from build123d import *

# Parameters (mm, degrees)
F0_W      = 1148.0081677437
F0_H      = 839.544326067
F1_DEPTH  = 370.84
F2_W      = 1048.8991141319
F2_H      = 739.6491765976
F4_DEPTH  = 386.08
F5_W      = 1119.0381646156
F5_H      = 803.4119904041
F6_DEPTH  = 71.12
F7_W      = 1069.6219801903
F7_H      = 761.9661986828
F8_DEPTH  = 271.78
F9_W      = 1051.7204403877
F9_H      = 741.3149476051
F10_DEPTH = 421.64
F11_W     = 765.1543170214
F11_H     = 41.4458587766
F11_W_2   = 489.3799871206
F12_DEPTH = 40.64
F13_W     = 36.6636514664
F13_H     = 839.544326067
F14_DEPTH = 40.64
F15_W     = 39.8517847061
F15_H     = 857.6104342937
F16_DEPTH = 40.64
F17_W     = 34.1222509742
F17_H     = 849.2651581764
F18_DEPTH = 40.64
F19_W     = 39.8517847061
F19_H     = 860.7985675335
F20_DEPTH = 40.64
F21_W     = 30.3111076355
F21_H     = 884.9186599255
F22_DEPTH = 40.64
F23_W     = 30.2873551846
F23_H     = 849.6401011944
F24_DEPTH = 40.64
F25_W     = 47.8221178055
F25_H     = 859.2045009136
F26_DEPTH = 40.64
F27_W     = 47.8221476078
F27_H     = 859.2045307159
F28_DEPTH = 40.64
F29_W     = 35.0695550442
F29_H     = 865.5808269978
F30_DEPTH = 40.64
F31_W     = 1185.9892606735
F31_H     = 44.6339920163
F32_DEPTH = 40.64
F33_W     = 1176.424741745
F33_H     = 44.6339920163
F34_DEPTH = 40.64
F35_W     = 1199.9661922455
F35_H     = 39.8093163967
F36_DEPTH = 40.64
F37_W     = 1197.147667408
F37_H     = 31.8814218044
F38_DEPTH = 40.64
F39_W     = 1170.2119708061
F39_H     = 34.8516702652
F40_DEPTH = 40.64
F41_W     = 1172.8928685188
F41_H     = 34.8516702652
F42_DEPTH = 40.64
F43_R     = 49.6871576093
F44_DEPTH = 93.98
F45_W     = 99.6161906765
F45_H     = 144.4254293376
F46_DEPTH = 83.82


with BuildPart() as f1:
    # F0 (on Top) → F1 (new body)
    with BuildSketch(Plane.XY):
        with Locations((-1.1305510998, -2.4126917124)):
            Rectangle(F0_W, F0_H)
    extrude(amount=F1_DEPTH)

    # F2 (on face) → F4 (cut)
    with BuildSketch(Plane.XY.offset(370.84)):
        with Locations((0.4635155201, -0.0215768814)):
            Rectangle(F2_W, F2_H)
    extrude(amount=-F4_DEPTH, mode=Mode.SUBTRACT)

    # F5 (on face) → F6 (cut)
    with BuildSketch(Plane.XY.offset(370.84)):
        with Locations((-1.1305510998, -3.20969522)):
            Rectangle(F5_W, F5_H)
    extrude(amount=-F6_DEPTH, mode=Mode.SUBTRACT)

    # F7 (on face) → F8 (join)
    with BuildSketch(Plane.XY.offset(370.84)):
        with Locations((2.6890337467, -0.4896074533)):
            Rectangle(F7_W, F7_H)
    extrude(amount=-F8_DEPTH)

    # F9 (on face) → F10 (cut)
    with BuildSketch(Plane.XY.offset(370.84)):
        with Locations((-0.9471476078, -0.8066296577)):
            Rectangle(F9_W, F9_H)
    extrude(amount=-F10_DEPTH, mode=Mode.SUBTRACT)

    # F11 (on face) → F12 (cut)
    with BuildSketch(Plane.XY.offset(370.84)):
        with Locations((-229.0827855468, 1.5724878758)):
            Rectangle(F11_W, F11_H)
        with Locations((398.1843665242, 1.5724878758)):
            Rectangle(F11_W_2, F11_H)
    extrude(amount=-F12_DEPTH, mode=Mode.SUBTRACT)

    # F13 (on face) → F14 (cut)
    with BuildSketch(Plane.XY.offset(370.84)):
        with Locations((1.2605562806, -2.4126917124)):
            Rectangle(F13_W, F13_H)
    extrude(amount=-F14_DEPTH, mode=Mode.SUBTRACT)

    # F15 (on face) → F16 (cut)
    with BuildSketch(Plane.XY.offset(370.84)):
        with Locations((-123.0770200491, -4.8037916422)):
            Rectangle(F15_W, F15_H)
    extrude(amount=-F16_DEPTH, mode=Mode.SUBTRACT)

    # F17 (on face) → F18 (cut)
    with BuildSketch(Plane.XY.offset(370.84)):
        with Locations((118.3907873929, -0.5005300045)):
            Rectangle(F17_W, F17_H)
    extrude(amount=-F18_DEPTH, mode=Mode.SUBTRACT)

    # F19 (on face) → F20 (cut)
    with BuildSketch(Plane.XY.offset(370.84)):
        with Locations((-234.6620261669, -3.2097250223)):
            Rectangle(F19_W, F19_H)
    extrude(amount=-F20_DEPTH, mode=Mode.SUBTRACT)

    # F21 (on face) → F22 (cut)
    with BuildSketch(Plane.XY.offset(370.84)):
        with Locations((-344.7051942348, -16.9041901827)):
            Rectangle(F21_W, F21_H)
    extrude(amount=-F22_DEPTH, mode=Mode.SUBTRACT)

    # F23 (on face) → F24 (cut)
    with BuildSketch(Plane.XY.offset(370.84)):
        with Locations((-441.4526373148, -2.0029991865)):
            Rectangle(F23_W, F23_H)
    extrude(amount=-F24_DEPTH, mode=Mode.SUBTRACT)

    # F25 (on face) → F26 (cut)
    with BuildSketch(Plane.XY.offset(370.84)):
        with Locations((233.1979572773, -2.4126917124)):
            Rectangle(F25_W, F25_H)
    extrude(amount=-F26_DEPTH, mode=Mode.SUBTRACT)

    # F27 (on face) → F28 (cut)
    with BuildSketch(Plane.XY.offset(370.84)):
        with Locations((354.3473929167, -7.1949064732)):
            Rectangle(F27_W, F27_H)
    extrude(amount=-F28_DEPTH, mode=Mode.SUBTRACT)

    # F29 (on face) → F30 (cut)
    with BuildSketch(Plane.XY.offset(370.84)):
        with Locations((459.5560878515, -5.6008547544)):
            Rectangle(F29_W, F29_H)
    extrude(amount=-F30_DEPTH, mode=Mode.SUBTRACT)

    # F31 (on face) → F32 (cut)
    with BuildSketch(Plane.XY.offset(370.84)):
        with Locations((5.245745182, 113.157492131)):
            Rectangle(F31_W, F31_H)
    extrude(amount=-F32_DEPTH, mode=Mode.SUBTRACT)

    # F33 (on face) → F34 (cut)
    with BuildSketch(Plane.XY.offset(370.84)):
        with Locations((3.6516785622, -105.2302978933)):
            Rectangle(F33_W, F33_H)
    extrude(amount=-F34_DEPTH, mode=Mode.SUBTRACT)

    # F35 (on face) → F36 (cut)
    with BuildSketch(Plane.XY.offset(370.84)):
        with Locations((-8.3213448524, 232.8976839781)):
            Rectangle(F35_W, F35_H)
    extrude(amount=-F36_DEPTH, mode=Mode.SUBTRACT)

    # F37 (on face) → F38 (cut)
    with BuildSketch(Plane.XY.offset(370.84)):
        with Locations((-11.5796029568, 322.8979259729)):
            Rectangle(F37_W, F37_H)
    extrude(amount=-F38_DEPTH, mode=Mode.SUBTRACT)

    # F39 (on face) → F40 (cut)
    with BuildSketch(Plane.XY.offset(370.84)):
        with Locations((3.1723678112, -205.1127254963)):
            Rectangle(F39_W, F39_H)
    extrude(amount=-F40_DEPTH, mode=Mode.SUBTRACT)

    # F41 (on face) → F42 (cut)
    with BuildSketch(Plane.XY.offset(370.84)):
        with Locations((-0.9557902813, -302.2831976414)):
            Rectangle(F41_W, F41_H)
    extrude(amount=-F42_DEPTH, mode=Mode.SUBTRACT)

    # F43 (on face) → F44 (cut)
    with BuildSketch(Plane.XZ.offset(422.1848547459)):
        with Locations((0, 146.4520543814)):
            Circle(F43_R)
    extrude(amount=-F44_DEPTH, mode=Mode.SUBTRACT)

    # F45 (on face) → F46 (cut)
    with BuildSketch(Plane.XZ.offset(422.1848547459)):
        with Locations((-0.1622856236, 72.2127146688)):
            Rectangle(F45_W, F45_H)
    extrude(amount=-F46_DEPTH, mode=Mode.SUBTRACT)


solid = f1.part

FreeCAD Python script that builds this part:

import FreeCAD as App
import Part
import Sketcher
Q = App.Units.Quantity


def add_polygon(sketch, points):
    """Adds a closed chain of lines whose ends are joined by coincident constraints."""
    first, n = sketch.GeometryCount, len(points)
    for a, b in zip(points, points[1:] + points[:1]):
        sketch.addGeometry(Part.LineSegment(App.Vector(*a, 0), App.Vector(*b, 0)), False)
    for i in range(n):
        sketch.addConstraint(Sketcher.Constraint("Coincident", first + i, 2, first + (i + 1) % n, 1))

doc = App.newDocument("Part")
body = doc.addObject("PartDesign::Body", "Body")

# Sketch on XY plane
sketch1 = body.newObject("Sketcher::SketchObject", "Sketch")
sketch1.AttachmentSupport = (doc.getObject("XY_Plane"), [""])
sketch1.MapMode = "FlatFace"
add_polygon(sketch1, [(-575, 417), (-575, -422), (573, -422), (573, 417)])  # lines 0-3
sketch1.addConstraint(Sketcher.Constraint("Vertical", 0))
sketch1.addConstraint(Sketcher.Constraint("Horizontal", 1))
sketch1.addConstraint(Sketcher.Constraint("Vertical", 2))
sketch1.addConstraint(Sketcher.Constraint("Horizontal", 3))
sketch1.addConstraint(Sketcher.Constraint("DistanceX", 1, 1, 1, 2, 1148.008168))
sketch1.addConstraint(Sketcher.Constraint("DistanceY", 0, 2, 0, 1, 839.544326))
sketch1.addConstraint(Sketcher.Constraint("DistanceY", -1, 1, 2, 2, 417.359471))
sketch1.addConstraint(Sketcher.Constraint("DistanceX", 0, 2, -1, 1, 575.134635))
pad1 = body.newObject("PartDesign::Pad", "Pad")
pad1.Profile = sketch1
pad1.Length = Q("14.6 in")

# Sketch on XY plane
sketch2 = body.newObject("Sketcher::SketchObject", "Sketch001")
sketch2.AttachmentSupport = (doc.getObject("XY_Plane"), [""])
sketch2.MapMode = "FlatFace"
sketch2.AttachmentOffset = App.Placement(App.Vector(0, 0, 14.6 * 25.4), App.Rotation())
add_polygon(sketch2, [(-524, 370), (-524, -370), (525, -370), (525, 370)])  # lines 0-3
sketch2.addConstraint(Sketcher.Constraint("Vertical", 0))
sketch2.addConstraint(Sketcher.Constraint("Horizontal", 1))
sketch2.addConstraint(Sketcher.Constraint("Vertical", 2))
sketch2.addConstraint(Sketcher.Constraint("Horizontal", 3))
sketch2.addConstraint(Sketcher.Constraint("DistanceX", 1, 1, 1, 2, 1048.899114))
sketch2.addConstraint(Sketcher.Constraint("DistanceY", 0, 2, 0, 1, 739.649177))
sketch2.addConstraint(Sketcher.Constraint("DistanceX", 0, 2, -1, 1, 523.986042))
sketch2.addConstraint(Sketcher.Constraint("DistanceY", -1, 1, 2, 2, 369.803011))
pocket1 = body.newObject("PartDesign::Pocket", "Pocket")
pocket1.Profile = sketch2
pocket1.Length = Q("15.2 in")

# Sketch on XY plane
sketch3 = body.newObject("Sketcher::SketchObject", "Sketch002")
sketch3.AttachmentSupport = (doc.getObject("XY_Plane"), [""])
sketch3.MapMode = "FlatFace"
sketch3.AttachmentOffset = App.Placement(App.Vector(0, 0, 14.6 * 25.4), App.Rotation())
add_polygon(sketch3, [(-561, 398), (-561, -405), (558, -405), (558, 398)])  # lines 0-3
sketch3.addConstraint(Sketcher.Constraint("Vertical", 0))
sketch3.addConstraint(Sketcher.Constraint("Horizontal", 1))
sketch3.addConstraint(Sketcher.Constraint("Vertical", 2))
sketch3.addConstraint(Sketcher.Constraint("Horizontal", 3))
sketch3.addConstraint(Sketcher.Constraint("DistanceY", 0, 2, 0, 1, 803.41199))
sketch3.addConstraint(Sketcher.Constraint("DistanceY", -1, 1, 2, 2, 398.4963))
sketch3.addConstraint(Sketcher.Constraint("DistanceX", 1, 1, 1, 2, 1119.038165))
sketch3.addConstraint(Sketcher.Constraint("DistanceX", -1, 1, 1, 2, 558.388531))
pocket2 = body.newObject("PartDesign::Pocket", "Pocket001")
pocket2.Profile = sketch3
pocket2.Length = Q("2.8 in")

# Sketch on XY plane
sketch4 = body.newObject("Sketcher::SketchObject", "Sketch003")
sketch4.AttachmentSupport = (doc.getObject("XY_Plane"), [""])
sketch4.MapMode = "FlatFace"
sketch4.AttachmentOffset = App.Placement(App.Vector(0, 0, 14.6 * 25.4), App.Rotation())
add_polygon(sketch4, [(-532, 380), (-532, -381), (538, -381), (538, 380)])  # lines 0-3
sketch4.addConstraint(Sketcher.Constraint("Vertical", 0))
sketch4.addConstraint(Sketcher.Constraint("Horizontal", 1))
sketch4.addConstraint(Sketcher.Constraint("Vertical", 2))
sketch4.addConstraint(Sketcher.Constraint("Horizontal", 3))
sketch4.addConstraint(Sketcher.Constraint("DistanceY", 0, 2, 0, 1, 761.966199))
sketch4.addConstraint(Sketcher.Constraint("DistanceX", 1, 1, 1, 2, 1069.62198))
sketch4.addConstraint(Sketcher.Constraint("DistanceY", -1, 1, 2, 2, 380.493492))
sketch4.addConstraint(Sketcher.Constraint("DistanceX", 0, 2, -1, 1, 532.121956))
pad2 = body.newObject("PartDesign::Pad", "Pad001")
pad2.Profile = sketch4
pad2.Length = Q("10.7 in")
pad2.Reversed = True

# Sketch on XY plane
sketch5 = body.newObject("Sketcher::SketchObject", "Sketch004")
sketch5.AttachmentSupport = (doc.getObject("XY_Plane"), [""])
sketch5.MapMode = "FlatFace"
sketch5.AttachmentOffset = App.Placement(App.Vector(0, 0, 14.6 * 25.4), App.Rotation())
add_polygon(sketch5, [(-527, 370), (-527, -371), (525, -371), (525, 370)])  # lines 0-3
sketch5.addConstraint(Sketcher.Constraint("Vertical", 0))
sketch5.addConstraint(Sketcher.Constraint("Horizontal", 1))
sketch5.addConstraint(Sketcher.Constraint("Vertical", 2))
sketch5.addConstraint(Sketcher.Constraint("Horizontal", 3))
sketch5.addConstraint(Sketcher.Constraint("DistanceX", 1, 1, 1, 2, 1051.72044))
sketch5.addConstraint(Sketcher.Constraint("DistanceY", 0, 2, 0, 1, 741.314948))
sketch5.addConstraint(Sketcher.Constraint("DistanceX", 0, 2, -1, 1, 526.807368))
sketch5.addConstraint(Sketcher.Constraint("DistanceY", 0, 2, -1, 1, 371.464103))
pocket3 = body.newObject("PartDesign::Pocket", "Pocket002")
pocket3.Profile = sketch5
pocket3.Length = Q("16.6 in")

# Sketch on XY plane
sketch6 = body.newObject("Sketcher::SketchObject", "Sketch005")
sketch6.AttachmentSupport = (doc.getObject("XY_Plane"), [""])
sketch6.MapMode = "FlatFace"
sketch6.AttachmentOffset = App.Placement(App.Vector(0, 0, 14.6 * 25.4), App.Rotation())
add_polygon(sketch6, [(-612, 22), (-612, -19), (643, -19), (643, 22)])  # lines 0-3
sketch6.addConstraint(Sketcher.Constraint("Vertical", 0))
sketch6.addConstraint(Sketcher.Constraint("Horizontal", 1))
sketch6.addConstraint(Sketcher.Constraint("Vertical", 2))
sketch6.addConstraint(Sketcher.Constraint("Horizontal", 3))
sketch6.addConstraint(Sketcher.Constraint("DistanceX", 0, 2, -1, 1, Q("24.0811002 in")))
sketch6.addConstraint(Sketcher.Constraint("DistanceY", 0, 2, 0, 1, 41.445859))
sketch6.addConstraint(Sketcher.Constraint("DistanceX", 1, 1, 1, 2, 1254.534304))
sketch6.addConstraint(Sketcher.Constraint("DistanceY", 0, 2, -1, 1, 19.150442))
pocket4 = body.newObject("PartDesign::Pocket", "Pocket003")
pocket4.Profile = sketch6
pocket4.Length = Q("1.6 in")

# Sketch on XY plane
sketch7 = body.newObject("Sketcher::SketchObject", "Sketch006")
sketch7.AttachmentSupport = (doc.getObject("XY_Plane"), [""])
sketch7.MapMode = "FlatFace"
sketch7.AttachmentOffset = App.Placement(App.Vector(0, 0, 14.6 * 25.4), App.Rotation())
add_polygon(sketch7, [(-17, 417), (-17, -422), (20, -422), (20, 417)])  # lines 0-3
sketch7.addConstraint(Sketcher.Constraint("Vertical", 0))
sketch7.addConstraint(Sketcher.Constraint("Horizontal", 1))
sketch7.addConstraint(Sketcher.Constraint("Vertical", 2))
sketch7.addConstraint(Sketcher.Constraint("Horizontal", 3))
sketch7.addConstraint(Sketcher.Constraint("DistanceX", 1, 1, 1, 2, 36.663651))
sketch7.addConstraint(Sketcher.Constraint("DistanceY", 0, 2, 0, 1, 839.544326))
sketch7.addConstraint(Sketcher.Constraint("DistanceX", 0, 2, -1, 1, 17.071269))
sketch7.addConstraint(Sketcher.Constraint("DistanceY", -1, 1, 2, 2, 417.359471))
pocket5 = body.newObject("PartDesign::Pocket", "Pocket004")
pocket5.Profile = sketch7
pocket5.Length = Q("1.6 in")

# Sketch on XY plane
sketch8 = body.newObject("Sketcher::SketchObject", "Sketch007")
sketch8.AttachmentSupport = (doc.getObject("XY_Plane"), [""])
sketch8.MapMode = "FlatFace"
sketch8.AttachmentOffset = App.Placement(App.Vector(0, 0, 14.6 * 25.4), App.Rotation())
add_polygon(sketch8, [(-143, 424), (-143, -434), (-103, -434), (-103, 424)])  # lines 0-3
sketch8.addConstraint(Sketcher.Constraint("Vertical", 0))
sketch8.addConstraint(Sketcher.Constraint("Horizontal", 1))
sketch8.addConstraint(Sketcher.Constraint("Vertical", 2))
sketch8.addConstraint(Sketcher.Constraint("Horizontal", 3))
sketch8.addConstraint(Sketcher.Constraint("DistanceX", 1, 1, 1, 2, 39.851785))
sketch8.addConstraint(Sketcher.Constraint("DistanceY", 0, 2, 0, 1, 857.610434))
sketch8.addConstraint(Sketcher.Constraint("DistanceY", 0, 2, -1, 1, 433.609009))
sketch8.addConstraint(Sketcher.Constraint("DistanceX", 0, 2, -1, 1, 143.002912))
pocket6 = body.newObject("PartDesign::Pocket", "Pocket005")
pocket6.Profile = sketch8
pocket6.Length = Q("1.6 in")

# Sketch on XY plane
sketch9 = body.newObject("Sketcher::SketchObject", "Sketch008")
sketch9.AttachmentSupport = (doc.getObject("XY_Plane"), [""])
sketch9.MapMode = "FlatFace"
sketch9.AttachmentOffset = App.Placement(App.Vector(0, 0, 14.6 * 25.4), App.Rotation())
add_polygon(sketch9, [(101, 424), (101, -425), (135, -425), (135, 424)])  # lines 0-3
sketch9.addConstraint(Sketcher.Constraint("Vertical", 0))
sketch9.addConstraint(Sketcher.Constraint("Horizontal", 1))
sketch9.addConstraint(Sketcher.Constraint("Vertical", 2))
sketch9.addConstraint(Sketcher.Constraint("Horizontal", 3))
sketch9.addConstraint(Sketcher.Constraint("DistanceX", 1, 1, 1, 2, 34.122251))
sketch9.addConstraint(Sketcher.Constraint("DistanceY", 0, 2, 0, 1, 849.265158))
sketch9.addConstraint(Sketcher.Constraint("DistanceX", -1, 1, 0, 2, 101.329662))
sketch9.addConstraint(Sketcher.Constraint("DistanceY", 0, 2, -1, 1, 425.133109))
pocket7 = body.newObject("PartDesign::Pocket", "Pocket006")
pocket7.Profile = sketch9
pocket7.Length = Q("1.6 in")

# Sketch on XY plane
sketch10 = body.newObject("Sketcher::SketchObject", "Sketch009")
sketch10.AttachmentSupport = (doc.getObject("XY_Plane"), [""])
sketch10.MapMode = "FlatFace"
sketch10.AttachmentOffset = App.Placement(App.Vector(0, 0, 14.6 * 25.4), App.Rotation())
add_polygon(sketch10, [(-255, 427), (-255, -434), (-215, -434), (-215, 427)])  # lines 0-3
sketch10.addConstraint(Sketcher.Constraint("Vertical", 0))
sketch10.addConstraint(Sketcher.Constraint("Horizontal", 1))
sketch10.addConstraint(Sketcher.Constraint("Vertical", 2))
sketch10.addConstraint(Sketcher.Constraint("Horizontal", 3))
sketch10.addConstraint(Sketcher.Constraint("DistanceX", 1, 1, 1, 2, 39.851785))
sketch10.addConstraint(Sketcher.Constraint("DistanceY", 0, 2, 0, 1, 860.798568))
sketch10.addConstraint(Sketcher.Constraint("DistanceX", 0, 2, -1, 1, 254.587919))
sketch10.addConstraint(Sketcher.Constraint("DistanceY", 0, 2, -1, 1, 433.609009))
pocket8 = body.newObject("PartDesign::Pocket", "Pocket007")
pocket8.Profile = sketch10
pocket8.Length = Q("1.6 in")

# Sketch on XY plane
sketch11 = body.newObject("Sketcher::SketchObject", "Sketch010")
sketch11.AttachmentSupport = (doc.getObject("XY_Plane"), [""])
sketch11.MapMode = "FlatFace"
sketch11.AttachmentOffset = App.Placement(App.Vector(0, 0, 14.6 * 25.4), App.Rotation())
add_polygon(sketch11, [(-360, 426), (-360, -459), (-330, -459), (-330, 426)])  # lines 0-3
sketch11.addConstraint(Sketcher.Constraint("Vertical", 0))
sketch11.addConstraint(Sketcher.Constraint("Horizontal", 1))
sketch11.addConstraint(Sketcher.Constraint("Vertical", 2))
sketch11.addConstraint(Sketcher.Constraint("Horizontal", 3))
sketch11.addConstraint(Sketcher.Constraint("DistanceY", 0, 2, 0, 1, 884.91866))
sketch11.addConstraint(Sketcher.Constraint("DistanceX", 1, 1, 1, 2, 30.311108))
sketch11.addConstraint(Sketcher.Constraint("DistanceX", 0, 2, -1, 1, 359.860748))
sketch11.addConstraint(Sketcher.Constraint("DistanceY", 0, 2, -1, 1, 459.36352))
pocket9 = body.newObject("PartDesign::Pocket", "Pocket008")
pocket9.Profile = sketch11
pocket9.Length = Q("1.6 in")

# Sketch on XY plane
sketch12 = body.newObject("Sketcher::SketchObject", "Sketch011")
sketch12.AttachmentSupport = (doc.getObject("XY_Plane"), [""])
sketch12.MapMode = "FlatFace"
sketch12.AttachmentOffset = App.Placement(App.Vector(0, 0, 14.6 * 25.4), App.Rotation())
add_polygon(sketch12, [(-457, 423), (-457, -427), (-426, -427), (-426, 423)])  # lines 0-3
sketch12.addConstraint(Sketcher.Constraint("Vertical", 0))
sketch12.addConstraint(Sketcher.Constraint("Horizontal", 1))
sketch12.addConstraint(Sketcher.Constraint("Vertical", 2))
sketch12.addConstraint(Sketcher.Constraint("Horizontal", 3))
sketch12.addConstraint(Sketcher.Constraint("DistanceY", 0, 2, 0, 1, 849.640101))
sketch12.addConstraint(Sketcher.Constraint("DistanceX", 1, 1, 1, 2, 30.287355))
sketch12.addConstraint(Sketcher.Constraint("DistanceY", 0, 2, -1, 1, 426.82305))
sketch12.addConstraint(Sketcher.Constraint("DistanceX", 1, 2, -1, 1, 426.30896))
pocket10 = body.newObject("PartDesign::Pocket", "Pocket009")
pocket10.Profile = sketch12
pocket10.Length = Q("1.6 in")

# Sketch on XY plane
sketch13 = body.newObject("Sketcher::SketchObject", "Sketch012")
sketch13.AttachmentSupport = (doc.getObject("XY_Plane"), [""])
sketch13.MapMode = "FlatFace"
sketch13.AttachmentOffset = App.Placement(App.Vector(0, 0, 14.6 * 25.4), App.Rotation())
add_polygon(sketch13, [(209, 427), (209, -432), (257, -432), (257, 427)])  # lines 0-3
sketch13.addConstraint(Sketcher.Constraint("Vertical", 0))
sketch13.addConstraint(Sketcher.Constraint("Horizontal", 1))
sketch13.addConstraint(Sketcher.Constraint("Vertical", 2))
sketch13.addConstraint(Sketcher.Constraint("Horizontal", 3))
sketch13.addConstraint(Sketcher.Constraint("DistanceY", 0, 2, 0, 1, 859.204501))
sketch13.addConstraint(Sketcher.Constraint("DistanceX", -1, 1, 0, 2, 209.286898))
sketch13.addConstraint(Sketcher.Constraint("DistanceX", 1, 1, 1, 2, 47.822118))
sketch13.addConstraint(Sketcher.Constraint("DistanceY", -1, 1, 2, 2, 427.189559))
pocket11 = body.newObject("PartDesign::Pocket", "Pocket010")
pocket11.Profile = sketch13
pocket11.Length = Q("1.6 in")

# Sketch on XY plane
sketch14 = body.newObject("Sketcher::SketchObject", "Sketch013")
sketch14.AttachmentSupport = (doc.getObject("XY_Plane"), [""])
sketch14.MapMode = "FlatFace"
sketch14.AttachmentOffset = App.Placement(App.Vector(0, 0, 14.6 * 25.4), App.Rotation())
add_polygon(sketch14, [(330, 422), (330, -437), (378, -437), (378, 422)])  # lines 0-3
sketch14.addConstraint(Sketcher.Constraint("Vertical", 0))
sketch14.addConstraint(Sketcher.Constraint("Horizontal", 1))
sketch14.addConstraint(Sketcher.Constraint("Vertical", 2))
sketch14.addConstraint(Sketcher.Constraint("Horizontal", 3))
sketch14.addConstraint(Sketcher.Constraint("DistanceY", 0, 2, 0, 1, 859.204531))
sketch14.addConstraint(Sketcher.Constraint("DistanceX", 1, 1, 1, 2, 47.822148))
sketch14.addConstraint(Sketcher.Constraint("DistanceX", -1, 1, 0, 2, 330.436319))
sketch14.addConstraint(Sketcher.Constraint("DistanceY", 0, 2, -1, 1, 436.797172))
pocket12 = body.newObject("PartDesign::Pocket", "Pocket011")
pocket12.Profile = sketch14
pocket12.Length = Q("1.6 in")

# Sketch on XY plane
sketch15 = body.newObject("Sketcher::SketchObject", "Sketch014")
sketch15.AttachmentSupport = (doc.getObject("XY_Plane"), [""])
sketch15.MapMode = "FlatFace"
sketch15.AttachmentOffset = App.Placement(App.Vector(0, 0, 14.6 * 25.4), App.Rotation())
add_polygon(sketch15, [(442, 427), (442, -438), (477, -438), (477, 427)])  # lines 0-3
sketch15.addConstraint(Sketcher.Constraint("Vertical", 0))
sketch15.addConstraint(Sketcher.Constraint("Horizontal", 1))
sketch15.addConstraint(Sketcher.Constraint("Vertical", 2))
sketch15.addConstraint(Sketcher.Constraint("Horizontal", 3))
sketch15.addConstraint(Sketcher.Constraint("DistanceX", 1, 1, 1, 2, 35.069555))
sketch15.addConstraint(Sketcher.Constraint("DistanceY", 0, 2, 0, 1, 865.580827))
sketch15.addConstraint(Sketcher.Constraint("DistanceX", -1, 1, 0, 2, 442.02131))
sketch15.addConstraint(Sketcher.Constraint("DistanceY", 0, 2, -1, 1, 438.391268))
pocket13 = body.newObject("PartDesign::Pocket", "Pocket012")
pocket13.Profile = sketch15
pocket13.Length = Q("1.6 in")

# Sketch on XY plane
sketch16 = body.newObject("Sketcher::SketchObject", "Sketch015")
sketch16.AttachmentSupport = (doc.getObject("XY_Plane"), [""])
sketch16.MapMode = "FlatFace"
sketch16.AttachmentOffset = App.Placement(App.Vector(0, 0, 14.6 * 25.4), App.Rotation())
add_polygon(sketch16, [(-588, 135), (-588, 91), (598, 91), (598, 135)])  # lines 0-3
sketch16.addConstraint(Sketcher.Constraint("Vertical", 0))
sketch16.addConstraint(Sketcher.Constraint("Horizontal", 1))
sketch16.addConstraint(Sketcher.Constraint("Vertical", 2))
sketch16.addConstraint(Sketcher.Constraint("Horizontal", 3))
sketch16.addConstraint(Sketcher.Constraint("DistanceX", 1, 1, 1, 2, 1185.989261))
sketch16.addConstraint(Sketcher.Constraint("DistanceY", 0, 2, 0, 1, 44.633992))
sketch16.addConstraint(Sketcher.Constraint("DistanceY", -1, 1, 2, 2, 135.474488))
sketch16.addConstraint(Sketcher.Constraint("DistanceX", 0, 2, -1, 1, 587.748885))
pocket14 = body.newObject("PartDesign::Pocket", "Pocket013")
pocket14.Profile = sketch16
pocket14.Length = Q("1.6 in")

# Sketch on XY plane
sketch17 = body.newObject("Sketcher::SketchObject", "Sketch016")
sketch17.AttachmentSupport = (doc.getObject("XY_Plane"), [""])
sketch17.MapMode = "FlatFace"
sketch17.AttachmentOffset = App.Placement(App.Vector(0, 0, 14.6 * 25.4), App.Rotation())
add_polygon(sketch17, [(-585, -83), (-585, -128), (592, -128), (592, -83)])  # lines 0-3
sketch17.addConstraint(Sketcher.Constraint("Vertical", 0))
sketch17.addConstraint(Sketcher.Constraint("Horizontal", 1))
sketch17.addConstraint(Sketcher.Constraint("Vertical", 2))
sketch17.addConstraint(Sketcher.Constraint("Horizontal", 3))
sketch17.addConstraint(Sketcher.Constraint("DistanceX", 1, 1, 1, 2, 1176.424742))
sketch17.addConstraint(Sketcher.Constraint("DistanceY", 2, 2, -1, 1, 82.913302))
sketch17.addConstraint(Sketcher.Constraint("DistanceY", 0, 2, 0, 1, 44.633992))
sketch17.addConstraint(Sketcher.Constraint("DistanceX", -1, 1, 1, 2, 591.864049))
pocket15 = body.newObject("PartDesign::Pocket", "Pocket014")
pocket15.Profile = sketch17
pocket15.Length = Q("1.6 in")

# Sketch on XY plane
sketch18 = body.newObject("Sketcher::SketchObject", "Sketch017")
sketch18.AttachmentSupport = (doc.getObject("XY_Plane"), [""])
sketch18.MapMode = "FlatFace"
sketch18.AttachmentOffset = App.Placement(App.Vector(0, 0, 14.6 * 25.4), App.Rotation())
add_polygon(sketch18, [(-608, 253), (-608, 213), (592, 213), (592, 253)])  # lines 0-3
sketch18.addConstraint(Sketcher.Constraint("Vertical", 0))
sketch18.addConstraint(Sketcher.Constraint("Horizontal", 1))
sketch18.addConstraint(Sketcher.Constraint("Vertical", 2))
sketch18.addConstraint(Sketcher.Constraint("Horizontal", 3))
sketch18.addConstraint(Sketcher.Constraint("DistanceX", 1, 1, 1, 2, 1199.966192))
sketch18.addConstraint(Sketcher.Constraint("DistanceY", 0, 2, 0, 1, 39.809316))
sketch18.addConstraint(Sketcher.Constraint("DistanceX", 0, 2, -1, 1, 608.304441))
sketch18.addConstraint(Sketcher.Constraint("DistanceY", -1, 1, 0, 2, 212.993026))
pocket16 = body.newObject("PartDesign::Pocket", "Pocket015")
pocket16.Profile = sketch18
pocket16.Length = Q("1.6 in")

# Sketch on XY plane
sketch19 = body.newObject("Sketcher::SketchObject", "Sketch018")
sketch19.AttachmentSupport = (doc.getObject("XY_Plane"), [""])
sketch19.MapMode = "FlatFace"
sketch19.AttachmentOffset = App.Placement(App.Vector(0, 0, 14.6 * 25.4), App.Rotation())
add_polygon(sketch19, [(-610, 339), (-610, 307), (587, 307), (587, 339)])  # lines 0-3
sketch19.addConstraint(Sketcher.Constraint("Vertical", 0))
sketch19.addConstraint(Sketcher.Constraint("Horizontal", 1))
sketch19.addConstraint(Sketcher.Constraint("Vertical", 2))
sketch19.addConstraint(Sketcher.Constraint("Horizontal", 3))
sketch19.addConstraint(Sketcher.Constraint("DistanceY", 0, 2, 0, 1, 31.881422))
sketch19.addConstraint(Sketcher.Constraint("DistanceX", 1, 1, 1, 2, 1197.147667))
sketch19.addConstraint(Sketcher.Constraint("DistanceX", -1, 1, 1, 2, 586.994231))
sketch19.addConstraint(Sketcher.Constraint("DistanceY", -1, 1, 0, 2, 306.957215))
pocket17 = body.newObject("PartDesign::Pocket", "Pocket016")
pocket17.Profile = sketch19
pocket17.Length = Q("1.6 in")

# Sketch on XY plane
sketch20 = body.newObject("Sketcher::SketchObject", "Sketch019")
sketch20.AttachmentSupport = (doc.getObject("XY_Plane"), [""])
sketch20.MapMode = "FlatFace"
sketch20.AttachmentOffset = App.Placement(App.Vector(0, 0, 14.6 * 25.4), App.Rotation())
add_polygon(sketch20, [(-582, -188), (-582, -223), (588, -223), (588, -188)])  # lines 0-3
sketch20.addConstraint(Sketcher.Constraint("Vertical", 0))
sketch20.addConstraint(Sketcher.Constraint("Horizontal", 1))
sketch20.addConstraint(Sketcher.Constraint("Vertical", 2))
sketch20.addConstraint(Sketcher.Constraint("Horizontal", 3))
sketch20.addConstraint(Sketcher.Constraint("DistanceX", 1, 1, 1, 2, 1170.211971))
sketch20.addConstraint(Sketcher.Constraint("DistanceY", 0, 2, 0, 1, 34.85167))
sketch20.addConstraint(Sketcher.Constraint("DistanceY", 0, 2, -1, 1, 222.538561))
sketch20.addConstraint(Sketcher.Constraint("DistanceX", 0, 2, -1, 1, 581.933618))
pocket18 = body.newObject("PartDesign::Pocket", "Pocket017")
pocket18.Profile = sketch20
pocket18.Length = Q("1.6 in")

# Sketch on XY plane
sketch21 = body.newObject("Sketcher::SketchObject", "Sketch020")
sketch21.AttachmentSupport = (doc.getObject("XY_Plane"), [""])
sketch21.MapMode = "FlatFace"
sketch21.AttachmentOffset = App.Placement(App.Vector(0, 0, 14.6 * 25.4), App.Rotation())
add_polygon(sketch21, [(-587, -285), (-587, -320), (585, -320), (585, -285)])  # lines 0-3
sketch21.addConstraint(Sketcher.Constraint("Vertical", 0))
sketch21.addConstraint(Sketcher.Constraint("Horizontal", 1))
sketch21.addConstraint(Sketcher.Constraint("Vertical", 2))
sketch21.addConstraint(Sketcher.Constraint("Horizontal", 3))
sketch21.addConstraint(Sketcher.Constraint("DistanceX", 1, 1, 1, 2, 1172.892869))
sketch21.addConstraint(Sketcher.Constraint("DistanceY", 0, 2, 0, 1, 34.85167))
sketch21.addConstraint(Sketcher.Constraint("DistanceX", 0, 2, -1, 1, 587.402225))
sketch21.addConstraint(Sketcher.Constraint("DistanceY", 0, 2, -1, 1, 319.709033))
pocket19 = body.newObject("PartDesign::Pocket", "Pocket018")
pocket19.Profile = sketch21
pocket19.Length = Q("1.6 in")

# Sketch on XZ plane
sketch22 = body.newObject("Sketcher::SketchObject", "Sketch021")
sketch22.AttachmentSupport = (doc.getObject("XZ_Plane"), [""])
sketch22.MapMode = "FlatFace"
sketch22.AttachmentOffset = App.Placement(App.Vector(0, 0, 422.184855), App.Rotation())
sketch22.addGeometry(Part.Circle(App.Vector(0, 146, 0), App.Vector(0, 0, 1), 50), False)
sketch22.addConstraint(Sketcher.Constraint("PointOnObject", 0, 3, -2))
sketch22.addConstraint(Sketcher.Constraint("Diameter", 0, 99.374315))
sketch22.addConstraint(Sketcher.Constraint("DistanceY", -1, 1, 0, 3, 146.452054))
pocket20 = body.newObject("PartDesign::Pocket", "Pocket019")
pocket20.Profile = sketch22
pocket20.Length = Q("3.7 in")

# Sketch on XZ plane
sketch23 = body.newObject("Sketcher::SketchObject", "Sketch022")
sketch23.AttachmentSupport = (doc.getObject("XZ_Plane"), [""])
sketch23.MapMode = "FlatFace"
sketch23.AttachmentOffset = App.Placement(App.Vector(0, 0, 422.184855), App.Rotation())
add_polygon(sketch23, [(-50, 144), (-50, 0), (50, 0), (50, 144)])  # lines 0-3
sketch23.addConstraint(Sketcher.Constraint("Vertical", 0))
sketch23.addConstraint(Sketcher.Constraint("Horizontal", 1))
sketch23.addConstraint(Sketcher.Constraint("Vertical", 2))
sketch23.addConstraint(Sketcher.Constraint("Horizontal", 3))
sketch23.addConstraint(Sketcher.Constraint("PointOnObject", 0, 2, -1))
sketch23.addConstraint(Sketcher.Constraint("DistanceX", 1, 1, 1, 2, 99.616191))
sketch23.addConstraint(Sketcher.Constraint("DistanceY", 0, 2, 0, 1, 144.425429))
sketch23.addConstraint(Sketcher.Constraint("DistanceX", 0, 2, -1, 1, 49.970381))
pocket21 = body.newObject("PartDesign::Pocket", "Pocket020")
pocket21.Profile = sketch23
pocket21.Length = Q("3.3 in")

doc.recompute()
